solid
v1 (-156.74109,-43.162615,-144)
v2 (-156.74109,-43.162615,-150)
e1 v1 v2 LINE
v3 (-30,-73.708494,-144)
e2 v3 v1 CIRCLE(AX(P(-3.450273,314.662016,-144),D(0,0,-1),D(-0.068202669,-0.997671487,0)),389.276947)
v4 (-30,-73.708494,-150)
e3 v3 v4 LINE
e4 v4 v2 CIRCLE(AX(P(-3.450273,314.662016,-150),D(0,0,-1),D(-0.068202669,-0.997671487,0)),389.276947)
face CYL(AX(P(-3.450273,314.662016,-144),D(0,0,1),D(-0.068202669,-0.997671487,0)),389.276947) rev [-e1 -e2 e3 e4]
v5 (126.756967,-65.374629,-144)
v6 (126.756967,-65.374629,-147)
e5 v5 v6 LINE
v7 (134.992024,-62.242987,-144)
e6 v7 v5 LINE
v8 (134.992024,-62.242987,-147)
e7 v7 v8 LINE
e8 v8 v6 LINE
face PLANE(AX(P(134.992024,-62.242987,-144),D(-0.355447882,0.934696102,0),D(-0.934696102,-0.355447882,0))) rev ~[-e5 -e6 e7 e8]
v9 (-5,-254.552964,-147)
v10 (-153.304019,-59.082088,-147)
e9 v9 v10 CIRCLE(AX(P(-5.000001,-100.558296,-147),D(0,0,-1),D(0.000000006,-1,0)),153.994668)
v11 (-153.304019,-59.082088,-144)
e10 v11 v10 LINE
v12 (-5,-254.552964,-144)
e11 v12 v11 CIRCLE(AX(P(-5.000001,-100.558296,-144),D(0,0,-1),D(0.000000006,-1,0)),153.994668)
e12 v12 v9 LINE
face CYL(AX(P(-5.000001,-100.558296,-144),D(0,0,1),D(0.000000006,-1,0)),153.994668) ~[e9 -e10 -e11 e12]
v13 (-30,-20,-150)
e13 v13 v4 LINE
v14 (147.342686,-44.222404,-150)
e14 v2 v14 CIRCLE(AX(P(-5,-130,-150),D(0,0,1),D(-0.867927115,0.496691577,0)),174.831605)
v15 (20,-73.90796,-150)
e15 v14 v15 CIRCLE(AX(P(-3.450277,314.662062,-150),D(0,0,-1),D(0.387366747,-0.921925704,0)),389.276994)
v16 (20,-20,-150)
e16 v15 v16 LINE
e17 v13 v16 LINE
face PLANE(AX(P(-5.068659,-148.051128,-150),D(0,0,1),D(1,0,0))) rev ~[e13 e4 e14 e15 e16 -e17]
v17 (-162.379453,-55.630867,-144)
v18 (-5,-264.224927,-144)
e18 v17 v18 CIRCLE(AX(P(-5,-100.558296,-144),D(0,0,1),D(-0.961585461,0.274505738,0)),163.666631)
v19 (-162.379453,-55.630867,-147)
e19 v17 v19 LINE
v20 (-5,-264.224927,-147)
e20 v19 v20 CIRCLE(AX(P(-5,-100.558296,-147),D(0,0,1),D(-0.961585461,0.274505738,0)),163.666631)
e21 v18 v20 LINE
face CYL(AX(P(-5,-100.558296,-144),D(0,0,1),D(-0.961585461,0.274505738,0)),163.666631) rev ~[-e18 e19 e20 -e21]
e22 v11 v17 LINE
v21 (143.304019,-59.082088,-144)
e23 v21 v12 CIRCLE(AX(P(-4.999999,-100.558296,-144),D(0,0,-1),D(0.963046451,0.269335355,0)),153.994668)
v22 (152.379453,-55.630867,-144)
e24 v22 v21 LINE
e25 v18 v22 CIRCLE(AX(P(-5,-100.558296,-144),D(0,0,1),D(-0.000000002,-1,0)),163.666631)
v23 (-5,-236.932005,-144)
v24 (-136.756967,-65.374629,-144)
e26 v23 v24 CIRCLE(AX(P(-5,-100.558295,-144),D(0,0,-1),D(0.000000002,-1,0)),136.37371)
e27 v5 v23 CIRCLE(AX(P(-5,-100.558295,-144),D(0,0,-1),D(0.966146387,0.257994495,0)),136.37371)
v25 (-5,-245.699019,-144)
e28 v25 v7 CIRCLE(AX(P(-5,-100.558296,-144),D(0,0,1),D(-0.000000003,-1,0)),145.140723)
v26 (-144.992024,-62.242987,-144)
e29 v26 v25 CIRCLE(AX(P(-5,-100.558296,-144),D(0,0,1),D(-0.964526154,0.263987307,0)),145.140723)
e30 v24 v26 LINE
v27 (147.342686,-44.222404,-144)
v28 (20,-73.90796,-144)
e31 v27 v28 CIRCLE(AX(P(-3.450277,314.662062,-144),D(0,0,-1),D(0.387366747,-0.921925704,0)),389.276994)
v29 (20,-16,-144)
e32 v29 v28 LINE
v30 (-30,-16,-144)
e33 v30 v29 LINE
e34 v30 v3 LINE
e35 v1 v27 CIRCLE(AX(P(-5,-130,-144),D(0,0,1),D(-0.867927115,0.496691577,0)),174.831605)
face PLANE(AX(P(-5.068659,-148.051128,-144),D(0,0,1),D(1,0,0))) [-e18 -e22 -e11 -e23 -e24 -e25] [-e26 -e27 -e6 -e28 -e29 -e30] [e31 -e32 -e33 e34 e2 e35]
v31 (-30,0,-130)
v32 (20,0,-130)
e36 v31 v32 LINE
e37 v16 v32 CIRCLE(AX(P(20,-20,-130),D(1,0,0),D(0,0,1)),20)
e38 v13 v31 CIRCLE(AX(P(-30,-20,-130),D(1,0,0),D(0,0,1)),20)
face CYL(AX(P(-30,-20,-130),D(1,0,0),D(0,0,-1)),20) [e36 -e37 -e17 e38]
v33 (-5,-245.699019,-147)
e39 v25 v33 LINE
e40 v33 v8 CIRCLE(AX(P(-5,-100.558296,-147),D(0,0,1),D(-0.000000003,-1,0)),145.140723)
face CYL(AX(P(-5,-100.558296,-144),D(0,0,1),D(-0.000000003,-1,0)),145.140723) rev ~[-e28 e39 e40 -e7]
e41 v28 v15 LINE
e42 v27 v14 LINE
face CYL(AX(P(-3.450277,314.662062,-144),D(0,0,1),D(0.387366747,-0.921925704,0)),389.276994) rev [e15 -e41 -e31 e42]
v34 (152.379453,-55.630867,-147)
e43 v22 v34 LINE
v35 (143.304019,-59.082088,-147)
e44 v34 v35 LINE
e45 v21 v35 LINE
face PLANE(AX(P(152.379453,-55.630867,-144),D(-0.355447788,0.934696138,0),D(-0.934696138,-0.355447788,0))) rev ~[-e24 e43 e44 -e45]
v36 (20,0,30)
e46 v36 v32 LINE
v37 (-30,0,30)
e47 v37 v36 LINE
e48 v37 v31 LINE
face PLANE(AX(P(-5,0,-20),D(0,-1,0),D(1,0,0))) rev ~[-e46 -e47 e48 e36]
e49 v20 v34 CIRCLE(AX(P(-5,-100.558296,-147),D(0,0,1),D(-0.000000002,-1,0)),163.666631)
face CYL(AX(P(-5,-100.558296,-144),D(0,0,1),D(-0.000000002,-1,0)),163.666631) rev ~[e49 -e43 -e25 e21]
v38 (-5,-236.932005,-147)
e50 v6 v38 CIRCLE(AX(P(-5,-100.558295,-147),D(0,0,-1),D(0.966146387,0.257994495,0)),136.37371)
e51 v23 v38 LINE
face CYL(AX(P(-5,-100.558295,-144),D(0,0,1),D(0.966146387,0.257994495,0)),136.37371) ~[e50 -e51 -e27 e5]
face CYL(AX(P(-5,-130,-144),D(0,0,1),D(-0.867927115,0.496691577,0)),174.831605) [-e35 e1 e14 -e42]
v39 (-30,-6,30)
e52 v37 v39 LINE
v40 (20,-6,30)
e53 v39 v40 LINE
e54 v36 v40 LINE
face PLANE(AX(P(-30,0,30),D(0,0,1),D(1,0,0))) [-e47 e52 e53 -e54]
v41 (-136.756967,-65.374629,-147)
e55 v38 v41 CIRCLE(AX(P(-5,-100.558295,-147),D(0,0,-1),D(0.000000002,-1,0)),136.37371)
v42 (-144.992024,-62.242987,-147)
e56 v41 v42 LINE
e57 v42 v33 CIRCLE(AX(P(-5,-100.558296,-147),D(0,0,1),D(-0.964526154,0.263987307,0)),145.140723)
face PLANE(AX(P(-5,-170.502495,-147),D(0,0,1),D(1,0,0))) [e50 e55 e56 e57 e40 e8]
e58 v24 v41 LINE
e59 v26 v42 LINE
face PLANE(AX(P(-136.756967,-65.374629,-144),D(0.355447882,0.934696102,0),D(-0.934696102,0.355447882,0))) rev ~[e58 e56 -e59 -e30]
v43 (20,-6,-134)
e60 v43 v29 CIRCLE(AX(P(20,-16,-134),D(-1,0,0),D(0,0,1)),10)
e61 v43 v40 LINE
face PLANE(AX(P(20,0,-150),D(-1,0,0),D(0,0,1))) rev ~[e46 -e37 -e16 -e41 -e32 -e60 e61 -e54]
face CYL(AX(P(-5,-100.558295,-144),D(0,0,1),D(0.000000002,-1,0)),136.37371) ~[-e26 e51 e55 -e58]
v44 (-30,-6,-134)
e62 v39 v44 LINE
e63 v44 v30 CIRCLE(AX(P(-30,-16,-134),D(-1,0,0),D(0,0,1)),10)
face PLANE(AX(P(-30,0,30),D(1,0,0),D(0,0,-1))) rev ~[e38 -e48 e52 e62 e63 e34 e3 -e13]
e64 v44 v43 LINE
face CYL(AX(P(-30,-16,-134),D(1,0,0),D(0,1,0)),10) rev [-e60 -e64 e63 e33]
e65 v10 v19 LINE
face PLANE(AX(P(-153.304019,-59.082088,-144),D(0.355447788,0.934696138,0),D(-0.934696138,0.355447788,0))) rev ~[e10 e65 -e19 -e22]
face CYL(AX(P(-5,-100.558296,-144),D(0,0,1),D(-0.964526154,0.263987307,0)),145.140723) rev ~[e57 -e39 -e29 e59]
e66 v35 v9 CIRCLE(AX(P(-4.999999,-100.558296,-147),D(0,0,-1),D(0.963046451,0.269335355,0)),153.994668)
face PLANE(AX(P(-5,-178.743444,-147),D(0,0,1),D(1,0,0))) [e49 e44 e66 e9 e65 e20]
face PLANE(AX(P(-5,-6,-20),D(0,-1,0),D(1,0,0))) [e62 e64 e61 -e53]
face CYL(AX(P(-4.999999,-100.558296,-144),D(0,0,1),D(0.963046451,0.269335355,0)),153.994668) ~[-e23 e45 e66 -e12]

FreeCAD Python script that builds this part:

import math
import FreeCAD as App
import Part
import Sketcher


def edges_at(feature, points):
    """Names of the edges that pass closest to the given points."""
    edges = feature.Shape.Edges
    near = lambda p: min(range(len(edges)), key=lambda i: edges[i].distToShape(Part.Vertex(*p))[0])
    return sorted({f"Edge{near(p) + 1}" for p in points})


def add_polygon(sketch, points):
    """Adds a closed chain of lines whose ends are joined by coincident constraints."""
    first, n = sketch.GeometryCount, len(points)
    for a, b in zip(points, points[1:] + points[:1]):
        sketch.addGeometry(Part.LineSegment(App.Vector(*a, 0), App.Vector(*b, 0)), False)
    for i in range(n):
        sketch.addConstraint(Sketcher.Constraint("Coincident", first + i, 2, first + (i + 1) % n, 1))

doc = App.newDocument("Part")
body = doc.addObject("PartDesign::Body", "Body")

# Sketch on XZ plane
sketch1 = body.newObject("Sketcher::SketchObject", "Sketch")
sketch1.AttachmentSupport = (doc.getObject("XZ_Plane"), [""])
sketch1.MapMode = "FlatFace"
add_polygon(sketch1, [(-30, -144), (-30, -150), (20, -150), (20, -144)])  # lines 0-3
sketch1.addConstraint(Sketcher.Constraint("Vertical", 0))
sketch1.addConstraint(Sketcher.Constraint("Horizontal", 1))
sketch1.addConstraint(Sketcher.Constraint("Vertical", 2))
sketch1.addConstraint(Sketcher.Constraint("Horizontal", 3))
sketch1.addConstraint(Sketcher.Constraint("DistanceX", 1, 1, 1, 2, 50.0))
sketch1.addConstraint(Sketcher.Constraint("DistanceY", 0, 2, 0, 1, 6.0))
sketch1.addConstraint(Sketcher.Constraint("DistanceX", 0, 2, -1, 1, 30.0))
sketch1.addConstraint(Sketcher.Constraint("DistanceY", 0, 2, -1, 1, 150.0))
pad1 = body.newObject("PartDesign::Pad", "Pad")
pad1.Profile = sketch1
pad1.Length = 130

# Sketch on XZ plane
sketch2 = body.newObject("Sketcher::SketchObject", "Sketch001")
sketch2.AttachmentSupport = (doc.getObject("XZ_Plane"), [""])
sketch2.MapMode = "FlatFace"
add_polygon(sketch2, [(-30, 30), (-30, -150), (20, -150), (20, 30)])  # lines 0-3
sketch2.addConstraint(Sketcher.Constraint("Vertical", 0))
sketch2.addConstraint(Sketcher.Constraint("Horizontal", 1))
sketch2.addConstraint(Sketcher.Constraint("Vertical", 2))
sketch2.addConstraint(Sketcher.Constraint("Horizontal", 3))
sketch2.addConstraint(Sketcher.Constraint("DistanceX", 1, 1, 1, 2, 50.0))
sketch2.addConstraint(Sketcher.Constraint("DistanceY", 0, 2, 0, 1, 180.0))
sketch2.addConstraint(Sketcher.Constraint("DistanceX", 0, 2, -1, 1, 30.0))
sketch2.addConstraint(Sketcher.Constraint("DistanceY", 0, 2, -1, 1, 150.0))
pad2 = body.newObject("PartDesign::Pad", "Pad001")
pad2.Profile = sketch2
pad2.Length = 6
doc.recompute()

fillet = body.newObject("PartDesign::Fillet", "Fillet")
fillet.Base = (pad2, edges_at(pad2, [(-5, 0, -150)]))
fillet.Radius = 20
doc.recompute()

fillet2 = body.newObject("PartDesign::Fillet", "Fillet001")
fillet2.Base = (fillet, edges_at(fillet, [(-5, -6, -144)]))
fillet2.Radius = 10

# Sketch on XY plane
sketch3 = body.newObject("Sketcher::SketchObject", "Sketch002")
sketch3.AttachmentSupport = (doc.getObject("XY_Plane"), [""])
sketch3.MapMode = "FlatFace"
sketch3.AttachmentOffset = App.Placement(App.Vector(0, 0, -144), App.Rotation())
sketch3.addGeometry(Part.ArcOfCircle(Part.Circle(App.Vector(-3.450273, 314.662016, 0), App.Vector(0, 0, 1), 389.276947), math.radians(-113.190122), math.radians(-93.910761)), False)
sketch3.addGeometry(Part.ArcOfCircle(Part.Circle(App.Vector(-5, -130, 0), App.Vector(0, 0, 1), 174.831605), math.radians(150.218643), math.radians(389.381985)), False)
sketch3.addGeometry(Part.ArcOfCircle(Part.Circle(App.Vector(-3.450277, 314.662062, 0), App.Vector(0, 0, 1), 389.276994), math.radians(-86.546377), math.radians(-67.20925)), False)
sketch3.addGeometry(Part.LineSegment(App.Vector(20, -73.90796, 0), App.Vector(20, -130, 0)), False)
sketch3.addGeometry(Part.LineSegment(App.Vector(20, -130, 0), App.Vector(-30, -130, 0)), False)
sketch3.addGeometry(Part.LineSegment(App.Vector(-30, -130, 0), App.Vector(-30, -73.708494, 0)), False)
sketch3.addConstraint(Sketcher.Constraint("Coincident", 0, 1, 1, 1))
sketch3.addConstraint(Sketcher.Constraint("Coincident", 1, 2, 2, 2))
sketch3.addConstraint(Sketcher.Constraint("Coincident", 2, 1, 3, 1))
sketch3.addConstraint(Sketcher.Constraint("Coincident", 3, 2, 4, 1))
sketch3.addConstraint(Sketcher.Constraint("Coincident", 4, 2, 5, 1))
sketch3.addConstraint(Sketcher.Constraint("Coincident", 5, 2, 0, 2))
sketch3.addConstraint(Sketcher.Constraint("Vertical", 3))
sketch3.addConstraint(Sketcher.Constraint("Horizontal", 4))
sketch3.addConstraint(Sketcher.Constraint("Vertical", 5))
sketch3.addConstraint(Sketcher.Constraint("Horizontal", 1, 3, 3, 2))
sketch3.addConstraint(Sketcher.Constraint("DistanceX", 4, 2, 4, 1, 50.0))
sketch3.addConstraint(Sketcher.Constraint("DistanceX", 1, 3, -1, 1, 5.0))
sketch3.addConstraint(Sketcher.Constraint("DistanceY", 1, 3, -1, 1, 130.0))
sketch3.addConstraint(Sketcher.Constraint("DistanceX", -1, 1, 3, 2, 20.0))
sketch3.addConstraint(Sketcher.Constraint("Radius", 0, 389.276947))
sketch3.addConstraint(Sketcher.Constraint("Radius", 1, 174.831605))
sketch3.addConstraint(Sketcher.Constraint("Radius", 2, 389.276994))
sketch3.addConstraint(Sketcher.Constraint("DistanceY", 3, 2, 3, 1, 56.09204))
sketch3.addConstraint(Sketcher.Constraint("DistanceY", 5, 1, 5, 2, 56.291506))
sketch3.addConstraint(Sketcher.Constraint("DistanceY", 0, 1, 0, 3, 357.824631))
sketch3.addConstraint(Sketcher.Constraint("DistanceX", 2, 3, -1, 1, 3.450277))
pad3 = body.newObject("PartDesign::Pad", "Pad002")
pad3.Profile = sketch3
pad3.Length = 6
pad3.Reversed = True

# Sketch on XY plane
sketch4 = body.newObject("Sketcher::SketchObject", "Sketch003")
sketch4.AttachmentSupport = (doc.getObject("XY_Plane"), [""])
sketch4.MapMode = "FlatFace"
sketch4.AttachmentOffset = App.Placement(App.Vector(0, 0, -144), App.Rotation())
sketch4.addGeometry(Part.ArcOfCircle(Part.Circle(App.Vector(-5.000001, -100.558296, 0), App.Vector(0, 0, 1), 153.994668), math.radians(164.37528), math.radians(270)), False)
sketch4.addGeometry(Part.LineSegment(App.Vector(-153.304019, -59.082088, 0), App.Vector(-162.379453, -55.630867, 0)), False)
sketch4.addGeometry(Part.ArcOfCircle(Part.Circle(App.Vector(-5, -100.558296, 0), App.Vector(0, 0, 1), 163.666631), math.radians(164.067438), math.radians(270)), False)
sketch4.addGeometry(Part.ArcOfCircle(Part.Circle(App.Vector(-5, -100.558296, 0), App.Vector(0, 0, 1), 163.666631), math.radians(-90), math.radians(15.932562)), False)
sketch4.addGeometry(Part.LineSegment(App.Vector(152.379453, -55.630867, 0), App.Vector(143.304019, -59.082088, 0)), False)
sketch4.addGeometry(Part.ArcOfCircle(Part.Circle(App.Vector(-4.999999, -100.558296, 0), App.Vector(0, 0, 1), 153.994668), math.radians(-90), math.radians(15.62472)), False)
sketch4.addGeometry(Part.LineSegment(App.Vector(-136.756967, -65.374629, 0), App.Vector(-144.992024, -62.242987, 0)), False)
sketch4.addGeometry(Part.ArcOfCircle(Part.Circle(App.Vector(-5, -100.558296, 0), App.Vector(0, 0, 1), 145.140723), math.radians(164.693213), math.radians(270)), False)
sketch4.addGeometry(Part.ArcOfCircle(Part.Circle(App.Vector(-5, -100.558296, 0), App.Vector(0, 0, 1), 145.140723), math.radians(-90), math.radians(15.306787)), False)
sketch4.addGeometry(Part.LineSegment(App.Vector(134.992024, -62.242987, 0), App.Vector(126.756967, -65.374629, 0)), False)
sketch4.addGeometry(Part.ArcOfCircle(Part.Circle(App.Vector(-5, -100.558295, 0), App.Vector(0, 0, 1), 136.37371), math.radians(-90), math.radians(14.951096)), False)
sketch4.addGeometry(Part.ArcOfCircle(Part.Circle(App.Vector(-5, -100.558295, 0), App.Vector(0, 0, 1), 136.37371), math.radians(165.048904), math.radians(270)), False)
sketch4.addConstraint(Sketcher.Constraint("Coincident", 0, 1, 1, 1))
sketch4.addConstraint(Sketcher.Constraint("Coincident", 1, 2, 2, 1))
sketch4.addConstraint(Sketcher.Constraint("Tangent", 2, 2, 3, 1))
sketch4.addConstraint(Sketcher.Constraint("Coincident", 3, 2, 4, 1))
sketch4.addConstraint(Sketcher.Constraint("Coincident", 4, 2, 5, 2))
sketch4.addConstraint(Sketcher.Constraint("Tangent", 5, 1, 0, 2))
sketch4.addConstraint(Sketcher.Constraint("Coincident", 6, 2, 7, 1))
sketch4.addConstraint(Sketcher.Constraint("Tangent", 7, 2, 8, 1))
sketch4.addConstraint(Sketcher.Constraint("Coincident", 8, 2, 9, 1))
sketch4.addConstraint(Sketcher.Constraint("Coincident", 9, 2, 10, 2))
sketch4.addConstraint(Sketcher.Constraint("Tangent", 10, 1, 11, 2))
sketch4.addConstraint(Sketcher.Constraint("Coincident", 11, 1, 6, 1))
sketch4.addConstraint(Sketcher.Constraint("Coincident", 2, 3, 0, 3))
sketch4.addConstraint(Sketcher.Constraint("Coincident", 7, 3, 0, 3))
sketch4.addConstraint(Sketcher.Constraint("Coincident", 10, 3, 0, 3))
sketch4.addConstraint(Sketcher.Constraint("Equal", 2, 3))
sketch4.addConstraint(Sketcher.Constraint("Equal", 0, 5))
sketch4.addConstraint(Sketcher.Constraint("Equal", 7, 8))
sketch4.addConstraint(Sketcher.Constraint("Equal", 10, 11))
sketch4.addConstraint(Sketcher.Constraint("Parallel", 1, 6))
sketch4.addConstraint(Sketcher.Constraint("Parallel", 4, 9))
sketch4.addConstraint(Sketcher.Constraint("Horizontal", 1, 2, 3, 2))
sketch4.addConstraint(Sketcher.Constraint("Horizontal", 0, 1, 4, 2))
sketch4.addConstraint(Sketcher.Constraint("Horizontal", 6, 2, 8, 2))
sketch4.addConstraint(Sketcher.Constraint("Vertical", 11, 3, 2, 2))
sketch4.addConstraint(Sketcher.Constraint("Vertical", 2, 2, 5, 1))
sketch4.addConstraint(Sketcher.Constraint("Vertical", 5, 1, 7, 2))
sketch4.addConstraint(Sketcher.Constraint("Vertical", 7, 2, 10, 1))
sketch4.addConstraint(Sketcher.Constraint("DistanceX", 0, 3, -1, 1, 5.000001))
sketch4.addConstraint(Sketcher.Constraint("Radius", 2, 163.666631))
sketch4.addConstraint(Sketcher.Constraint("Radius", 10, 136.37371))
sketch4.addConstraint(Sketcher.Constraint("Radius", 0, 153.994668))
sketch4.addConstraint(Sketcher.Constraint("Radius", 7, 145.140723))
sketch4.addConstraint(Sketcher.Constraint("Distance", 1, 9.709502))
sketch4.addConstraint(Sketcher.Constraint("DistanceY", 6, 2, 0, 1, 3.160899))
sketch4.addConstraint(Sketcher.Constraint("DistanceX", 0, 1, -1, 1, 153.304019))
sketch4.addConstraint(Sketcher.Constraint("DistanceY", 7, 2, -1, 1, 245.699019))
pocket1 = body.newObject("PartDesign::Pocket", "Pocket")
pocket1.Profile = sketch4
pocket1.Length = 3

doc.recompute()
